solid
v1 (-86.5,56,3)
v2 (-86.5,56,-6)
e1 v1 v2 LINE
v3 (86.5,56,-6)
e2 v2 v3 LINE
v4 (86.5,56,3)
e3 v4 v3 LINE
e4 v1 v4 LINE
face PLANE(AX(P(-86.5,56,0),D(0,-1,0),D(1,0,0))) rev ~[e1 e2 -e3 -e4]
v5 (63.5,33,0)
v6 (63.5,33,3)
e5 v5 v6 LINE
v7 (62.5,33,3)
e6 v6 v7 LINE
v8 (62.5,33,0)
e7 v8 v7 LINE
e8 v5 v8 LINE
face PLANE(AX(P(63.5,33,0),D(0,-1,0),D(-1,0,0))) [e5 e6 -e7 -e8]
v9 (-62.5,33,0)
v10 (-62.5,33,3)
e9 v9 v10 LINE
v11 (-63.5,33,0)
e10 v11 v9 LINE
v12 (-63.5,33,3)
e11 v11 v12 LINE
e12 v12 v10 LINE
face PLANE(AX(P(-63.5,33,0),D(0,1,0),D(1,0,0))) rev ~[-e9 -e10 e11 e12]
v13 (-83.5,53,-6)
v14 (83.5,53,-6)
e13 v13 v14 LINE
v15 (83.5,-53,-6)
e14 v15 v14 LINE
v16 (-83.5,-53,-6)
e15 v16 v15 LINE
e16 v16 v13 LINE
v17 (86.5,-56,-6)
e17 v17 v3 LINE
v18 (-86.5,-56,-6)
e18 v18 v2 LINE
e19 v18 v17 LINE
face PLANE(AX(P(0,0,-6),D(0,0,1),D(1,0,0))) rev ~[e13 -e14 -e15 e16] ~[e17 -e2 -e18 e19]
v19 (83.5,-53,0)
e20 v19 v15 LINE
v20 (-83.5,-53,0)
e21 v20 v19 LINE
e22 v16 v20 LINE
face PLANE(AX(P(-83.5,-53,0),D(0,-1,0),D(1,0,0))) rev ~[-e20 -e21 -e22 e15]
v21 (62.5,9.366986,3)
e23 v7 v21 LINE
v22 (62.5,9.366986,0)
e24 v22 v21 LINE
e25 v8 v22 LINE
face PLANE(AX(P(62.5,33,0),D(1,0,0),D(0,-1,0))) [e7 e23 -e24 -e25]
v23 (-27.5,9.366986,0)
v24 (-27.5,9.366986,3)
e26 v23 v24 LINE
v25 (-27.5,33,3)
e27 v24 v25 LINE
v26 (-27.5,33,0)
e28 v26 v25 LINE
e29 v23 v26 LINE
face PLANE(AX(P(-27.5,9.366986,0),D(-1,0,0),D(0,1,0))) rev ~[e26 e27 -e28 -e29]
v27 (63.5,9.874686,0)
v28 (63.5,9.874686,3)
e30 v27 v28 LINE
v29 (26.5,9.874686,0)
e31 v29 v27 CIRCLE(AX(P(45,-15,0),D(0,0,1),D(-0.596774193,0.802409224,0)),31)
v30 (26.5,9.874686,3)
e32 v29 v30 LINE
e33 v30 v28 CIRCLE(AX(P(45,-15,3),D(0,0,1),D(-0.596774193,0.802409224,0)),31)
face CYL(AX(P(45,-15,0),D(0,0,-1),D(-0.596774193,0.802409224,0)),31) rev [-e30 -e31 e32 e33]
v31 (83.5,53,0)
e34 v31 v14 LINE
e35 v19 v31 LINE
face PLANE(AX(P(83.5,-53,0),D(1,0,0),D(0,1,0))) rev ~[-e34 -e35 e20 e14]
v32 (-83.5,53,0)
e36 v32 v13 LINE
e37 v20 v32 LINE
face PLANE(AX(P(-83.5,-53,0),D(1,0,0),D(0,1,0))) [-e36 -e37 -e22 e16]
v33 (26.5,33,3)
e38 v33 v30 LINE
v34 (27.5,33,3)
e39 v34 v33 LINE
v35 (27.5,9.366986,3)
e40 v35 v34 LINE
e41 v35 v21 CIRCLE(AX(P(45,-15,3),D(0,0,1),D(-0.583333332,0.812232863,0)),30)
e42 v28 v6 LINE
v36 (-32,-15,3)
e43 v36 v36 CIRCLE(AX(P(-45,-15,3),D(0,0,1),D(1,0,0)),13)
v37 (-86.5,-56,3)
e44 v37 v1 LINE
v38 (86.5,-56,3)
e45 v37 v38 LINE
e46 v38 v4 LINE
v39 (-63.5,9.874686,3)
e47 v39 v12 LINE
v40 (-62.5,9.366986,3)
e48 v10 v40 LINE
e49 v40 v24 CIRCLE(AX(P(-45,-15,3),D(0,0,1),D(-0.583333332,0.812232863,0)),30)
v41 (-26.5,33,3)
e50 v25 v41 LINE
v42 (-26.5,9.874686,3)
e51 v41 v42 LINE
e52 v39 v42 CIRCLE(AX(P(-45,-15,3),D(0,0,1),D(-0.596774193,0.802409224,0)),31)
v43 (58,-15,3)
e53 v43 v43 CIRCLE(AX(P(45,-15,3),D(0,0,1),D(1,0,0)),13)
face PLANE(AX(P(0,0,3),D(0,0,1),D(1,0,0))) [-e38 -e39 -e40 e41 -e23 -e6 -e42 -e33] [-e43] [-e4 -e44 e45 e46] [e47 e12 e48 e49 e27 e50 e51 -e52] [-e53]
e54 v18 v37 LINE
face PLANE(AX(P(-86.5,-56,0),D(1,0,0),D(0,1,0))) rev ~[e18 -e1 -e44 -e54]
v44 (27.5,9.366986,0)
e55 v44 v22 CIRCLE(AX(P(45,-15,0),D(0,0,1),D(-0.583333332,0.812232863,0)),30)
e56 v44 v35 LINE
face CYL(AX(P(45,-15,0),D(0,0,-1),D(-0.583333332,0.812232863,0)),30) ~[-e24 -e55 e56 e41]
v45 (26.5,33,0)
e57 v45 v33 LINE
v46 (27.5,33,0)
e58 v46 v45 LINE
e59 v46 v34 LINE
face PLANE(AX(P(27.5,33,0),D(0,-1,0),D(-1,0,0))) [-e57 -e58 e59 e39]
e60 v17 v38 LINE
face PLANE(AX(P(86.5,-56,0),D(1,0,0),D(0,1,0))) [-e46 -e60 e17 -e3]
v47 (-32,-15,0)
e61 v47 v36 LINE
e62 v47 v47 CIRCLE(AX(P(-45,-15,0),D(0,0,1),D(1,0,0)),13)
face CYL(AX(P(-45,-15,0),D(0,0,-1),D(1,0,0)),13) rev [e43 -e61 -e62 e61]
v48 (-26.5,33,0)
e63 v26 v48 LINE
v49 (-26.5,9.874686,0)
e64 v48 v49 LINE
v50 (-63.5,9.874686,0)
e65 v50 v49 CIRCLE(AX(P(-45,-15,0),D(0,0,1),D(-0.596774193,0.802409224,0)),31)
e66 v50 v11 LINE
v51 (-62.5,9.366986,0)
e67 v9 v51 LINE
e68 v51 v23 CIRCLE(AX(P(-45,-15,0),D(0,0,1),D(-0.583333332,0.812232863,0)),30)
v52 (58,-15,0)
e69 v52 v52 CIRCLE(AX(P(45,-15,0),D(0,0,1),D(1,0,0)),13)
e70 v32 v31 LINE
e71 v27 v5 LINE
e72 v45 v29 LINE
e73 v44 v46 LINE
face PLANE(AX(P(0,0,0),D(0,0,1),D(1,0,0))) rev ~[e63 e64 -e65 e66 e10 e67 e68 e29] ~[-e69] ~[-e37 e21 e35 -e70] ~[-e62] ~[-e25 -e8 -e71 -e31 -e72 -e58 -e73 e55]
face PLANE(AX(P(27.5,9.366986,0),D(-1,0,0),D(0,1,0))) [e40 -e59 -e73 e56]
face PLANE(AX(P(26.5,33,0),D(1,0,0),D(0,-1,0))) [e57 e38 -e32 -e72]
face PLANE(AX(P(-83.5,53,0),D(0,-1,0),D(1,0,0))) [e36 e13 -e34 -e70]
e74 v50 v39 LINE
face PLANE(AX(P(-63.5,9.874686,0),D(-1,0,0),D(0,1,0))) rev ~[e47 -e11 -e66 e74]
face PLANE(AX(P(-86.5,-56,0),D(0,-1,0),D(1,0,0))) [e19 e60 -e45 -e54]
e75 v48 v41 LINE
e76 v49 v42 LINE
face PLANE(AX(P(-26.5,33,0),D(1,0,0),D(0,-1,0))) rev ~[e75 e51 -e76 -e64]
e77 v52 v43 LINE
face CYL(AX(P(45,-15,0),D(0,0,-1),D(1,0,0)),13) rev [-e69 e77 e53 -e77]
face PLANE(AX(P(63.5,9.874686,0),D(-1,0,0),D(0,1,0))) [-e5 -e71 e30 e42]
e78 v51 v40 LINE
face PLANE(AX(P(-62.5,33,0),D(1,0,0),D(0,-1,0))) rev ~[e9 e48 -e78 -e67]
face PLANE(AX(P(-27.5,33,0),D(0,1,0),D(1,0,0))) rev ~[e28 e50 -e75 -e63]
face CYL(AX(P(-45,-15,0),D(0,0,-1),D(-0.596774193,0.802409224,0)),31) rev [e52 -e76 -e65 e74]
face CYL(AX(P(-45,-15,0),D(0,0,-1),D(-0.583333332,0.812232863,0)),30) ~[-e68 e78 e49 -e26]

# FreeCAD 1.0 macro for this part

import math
import FreeCAD as App
import Part
import Sketcher

V = App.Vector
Q = App.Units.Quantity


def add_polygon(sketch, points):
    """Adds a closed chain of lines whose ends are joined by coincident constraints."""
    first, n = sketch.GeometryCount, len(points)
    for a, b in zip(points, points[1:] + points[:1]):
        sketch.addGeometry(Part.LineSegment(App.Vector(*a, 0), App.Vector(*b, 0)), False)
    for i in range(n):
        sketch.addConstraint(Sketcher.Constraint("Coincident", first + i, 2, first + (i + 1) % n, 1))

doc = App.newDocument("Part")
params = doc.addObject("Spreadsheet::Sheet", "Params")
for row, (alias, value) in enumerate([
    ("sketch1_width", "173 mm"),
    ("sketch1_width2", "167 mm"),
    ("sketch1_height", "112 mm"),
    ("sketch1_height2", "106 mm"),
    ("pad1_length", "3 mm"),
    ("pad1_length2", "6 mm"),
    ("sketch2_diameter", "26 mm"),
    ("sketch2_radius", "30 mm"),
    ("sketch2_radius2", "31 mm"),
    ("sketch2_width", "167 mm"),
    ("sketch2_width2", "1 mm"),
    ("pad2_length", "3 mm"),
], start=1):
    params.set(f"A{row}", alias)
    params.set(f"B{row}", "=" + value)
    params.setAlias(f"B{row}", alias)

body = doc.addObject("PartDesign::Body", "Body")

sketch1 = body.newObject("Sketcher::SketchObject", "Sketch")
sketch1.AttachmentSupport = (doc.getObject("XY_Plane"), [""])
sketch1.MapMode = "FlatFace"
add_polygon(sketch1, [(-86, 56), (-86, -56), (86, -56), (86, 56)])
add_polygon(sketch1, [(84, -53), (-84, -53), (-84, 53), (84, 53)])
sketch1.addConstraint([
    Sketcher.Constraint("Vertical", 0),
    Sketcher.Constraint("Horizontal", 1),
    Sketcher.Constraint("Vertical", 2),
    Sketcher.Constraint("Horizontal", 3),
    Sketcher.Constraint("Horizontal", 4),
    Sketcher.Constraint("Vertical", 5),
    Sketcher.Constraint("Horizontal", 6),
    Sketcher.Constraint("Vertical", 7),
    Sketcher.Constraint("Symmetric", 0, 2, 2, 2, -1, 1),
    Sketcher.Constraint("Symmetric", 4, 2, 6, 2, -1, 1),
    Sketcher.Constraint("DistanceX", 1, 1, 1, 2, Q("173 mm")),
    Sketcher.Constraint("DistanceX", 4, 2, 4, 1, Q("167 mm")),
    Sketcher.Constraint("DistanceY", 0, 2, 0, 1, Q("112 mm")),
    Sketcher.Constraint("DistanceY", 5, 1, 5, 2, Q("106 mm")),
])
sketch1.setExpression("Constraints[18]", "Params.sketch1_width")
sketch1.setExpression("Constraints[19]", "Params.sketch1_width2")
sketch1.setExpression("Constraints[20]", "Params.sketch1_height")
sketch1.setExpression("Constraints[21]", "Params.sketch1_height2")
pad1 = body.newObject("PartDesign::Pad", "Pad")
pad1.Profile = sketch1
pad1.Type = "TwoLengths"
pad1.setExpression("Length", "Params.pad1_length")
pad1.setExpression("Length2", "Params.pad1_length2")
body2 = doc.addObject("PartDesign::Body", "Body001")

sketch2 = body2.newObject("Sketcher::SketchObject", "Sketch001")
sketch2.AttachmentSupport = (doc.getObject("XY_Plane001"), [""])
sketch2.MapMode = "FlatFace"
add_polygon(sketch2, [(-83.5, 53), (-83.5, -53), (83.5, -53), (83.5, 53)])
sketch2.addGeometry(Part.Circle(V(-45, -15, 0), V(0, 0, 1), 13), False)
sketch2.addGeometry(Part.Circle(V(45, -15, 0), V(0, 0, 1), 13), False)
sketch2.addGeometry(Part.ArcOfCircle(Part.Circle(V(-45, -15, 0), V(0, 0, 1), 30), math.radians(126), math.radians(414)), False)
sketch2.addGeometry(Part.LineSegment(V(-27.5, 9.4, 0), V(-27.5, 33, 0)), False)
sketch2.addGeometry(Part.LineSegment(V(-27.5, 33, 0), V(-26.5, 33, 0)), False)
sketch2.addGeometry(Part.LineSegment(V(-26.5, 33, 0), V(-26.5, 9.9, 0)), False)
sketch2.addGeometry(Part.ArcOfCircle(Part.Circle(V(-45, -15, 0), V(0, 0, 1), 31), math.radians(127), math.radians(413)), False)
sketch2.addGeometry(Part.LineSegment(V(-63.5, 9.9, 0), V(-63.5, 33, 0)), False)
sketch2.addGeometry(Part.LineSegment(V(-63.5, 33, 0), V(-62.5, 33, 0)), False)
sketch2.addGeometry(Part.LineSegment(V(-62.5, 33, 0), V(-62.5, 9.4, 0)), False)
sketch2.addGeometry(Part.LineSegment(V(27.5, 33, 0), V(27.5, 9.4, 0)), False)
sketch2.addGeometry(Part.ArcOfCircle(Part.Circle(V(45, -15, 0), V(0, 0, 1), 30), math.radians(126), math.radians(414)), False)
sketch2.addGeometry(Part.LineSegment(V(62.5, 9.4, 0), V(62.5, 33, 0)), False)
sketch2.addGeometry(Part.LineSegment(V(62.5, 33, 0), V(63.5, 33, 0)), False)
sketch2.addGeometry(Part.LineSegment(V(63.5, 33, 0), V(63.5, 9.9, 0)), False)
sketch2.addGeometry(Part.ArcOfCircle(Part.Circle(V(45, -15, 0), V(0, 0, 1), 31), math.radians(127), math.radians(413)), False)
sketch2.addGeometry(Part.LineSegment(V(26.5, 9.9, 0), V(26.5, 33, 0)), False)
sketch2.addGeometry(Part.LineSegment(V(26.5, 33, 0), V(27.5, 33, 0)), False)
sketch2.addConstraint([
    Sketcher.Constraint("Coincident", 6, 2, 7, 1),
    Sketcher.Constraint("Coincident", 7, 2, 8, 1),
    Sketcher.Constraint("Coincident", 8, 2, 9, 1),
    Sketcher.Constraint("Coincident", 9, 2, 10, 2),
    Sketcher.Constraint("Coincident", 10, 1, 11, 1),
    Sketcher.Constraint("Coincident", 11, 2, 12, 1),
    Sketcher.Constraint("Coincident", 12, 2, 13, 1),
    Sketcher.Constraint("Coincident", 13, 2, 6, 1),
    Sketcher.Constraint("Coincident", 14, 2, 15, 1),
    Sketcher.Constraint("Coincident", 15, 2, 16, 1),
    Sketcher.Constraint("Coincident", 16, 2, 17, 1),
    Sketcher.Constraint("Coincident", 17, 2, 18, 1),
    Sketcher.Constraint("Coincident", 18, 2, 19, 2),
    Sketcher.Constraint("Coincident", 19, 1, 20, 1),
    Sketcher.Constraint("Coincident", 20, 2, 21, 1),
    Sketcher.Constraint("Coincident", 21, 2, 14, 1),
    Sketcher.Constraint("Vertical", 0),
    Sketcher.Constraint("Horizontal", 1),
    Sketcher.Constraint("Vertical", 2),
    Sketcher.Constraint("Horizontal", 3),
    Sketcher.Constraint("Vertical", 7),
    Sketcher.Constraint("Horizontal", 8),
    Sketcher.Constraint("Vertical", 9),
    Sketcher.Constraint("Vertical", 11),
    Sketcher.Constraint("Horizontal", 12),
    Sketcher.Constraint("Vertical", 13),
    Sketcher.Constraint("Vertical", 14),
    Sketcher.Constraint("Vertical", 16),
    Sketcher.Constraint("Horizontal", 17),
    Sketcher.Constraint("Vertical", 18),
    Sketcher.Constraint("Vertical", 20),
    Sketcher.Constraint("Horizontal", 21),
    Sketcher.Constraint("Coincident", 6, 3, 4, 3),
    Sketcher.Constraint("Coincident", 10, 3, 4, 3),
    Sketcher.Constraint("Coincident", 15, 3, 5, 3),
    Sketcher.Constraint("Coincident", 19, 3, 5, 3),
    Sketcher.Constraint("Equal", 4, 5),
    Sketcher.Constraint("Equal", 6, 15),
    Sketcher.Constraint("Equal", 10, 19),
    Sketcher.Constraint("Symmetric", 0, 2, 2, 2, -1, 1),
    Sketcher.Constraint("Symmetric", 4, 3, 5, 3, -2),
    Sketcher.Constraint("Symmetric", 12, 2, 16, 2, -2),
    Sketcher.Constraint("Symmetric", 8, 2, 20, 2, -2),
    Sketcher.Constraint("Horizontal", 9, 2, 10, 1),
    Sketcher.Constraint("Horizontal", 8, 2, 11, 2),
    Sketcher.Constraint("Horizontal", 6, 2, 13, 2),
    Sketcher.Constraint("Horizontal", 13, 2, 14, 2),
    Sketcher.Constraint("Horizontal", 10, 1, 18, 2),
    Sketcher.Constraint("Diameter", 4, Q("26 mm")),
    Sketcher.Constraint("Radius", 6, Q("30 mm")),
    Sketcher.Constraint("Radius", 10, Q("31 mm")),
    Sketcher.Constraint("DistanceX", 1, 1, 1, 2, Q("167 mm")),
    Sketcher.Constraint("DistanceX", 8, 1, 8, 2, Q("1 mm")),
    Sketcher.Constraint("DistanceY", 0, 2, 0, 1, Q("106 mm")),
    Sketcher.Constraint("DistanceX", 4, 3, -1, 1, Q("45 mm")),
    Sketcher.Constraint("DistanceY", 4, 3, -1, 1, Q("15 mm")),
    Sketcher.Constraint("DistanceY", -1, 1, 7, 2, Q("33 mm")),
    Sketcher.Constraint("DistanceX", 3, 2, 6, 2, Q("56 mm")),
])
sketch2.setExpression("Constraints[52]", "Params.sketch2_diameter")
sketch2.setExpression("Constraints[53]", "Params.sketch2_radius")
sketch2.setExpression("Constraints[54]", "Params.sketch2_radius2")
sketch2.setExpression("Constraints[55]", "Params.sketch2_width")
sketch2.setExpression("Constraints[56]", "Params.sketch2_width2")
pad2 = body2.newObject("PartDesign::Pad", "Pad001")
pad2.Profile = sketch2
pad2.setExpression("Length", "Params.pad2_length")
doc.recompute()

boolean = body2.newObject("PartDesign::Boolean", "Boolean")
boolean.Type = "Fuse"
boolean.addObjects([body])

doc.recompute()
